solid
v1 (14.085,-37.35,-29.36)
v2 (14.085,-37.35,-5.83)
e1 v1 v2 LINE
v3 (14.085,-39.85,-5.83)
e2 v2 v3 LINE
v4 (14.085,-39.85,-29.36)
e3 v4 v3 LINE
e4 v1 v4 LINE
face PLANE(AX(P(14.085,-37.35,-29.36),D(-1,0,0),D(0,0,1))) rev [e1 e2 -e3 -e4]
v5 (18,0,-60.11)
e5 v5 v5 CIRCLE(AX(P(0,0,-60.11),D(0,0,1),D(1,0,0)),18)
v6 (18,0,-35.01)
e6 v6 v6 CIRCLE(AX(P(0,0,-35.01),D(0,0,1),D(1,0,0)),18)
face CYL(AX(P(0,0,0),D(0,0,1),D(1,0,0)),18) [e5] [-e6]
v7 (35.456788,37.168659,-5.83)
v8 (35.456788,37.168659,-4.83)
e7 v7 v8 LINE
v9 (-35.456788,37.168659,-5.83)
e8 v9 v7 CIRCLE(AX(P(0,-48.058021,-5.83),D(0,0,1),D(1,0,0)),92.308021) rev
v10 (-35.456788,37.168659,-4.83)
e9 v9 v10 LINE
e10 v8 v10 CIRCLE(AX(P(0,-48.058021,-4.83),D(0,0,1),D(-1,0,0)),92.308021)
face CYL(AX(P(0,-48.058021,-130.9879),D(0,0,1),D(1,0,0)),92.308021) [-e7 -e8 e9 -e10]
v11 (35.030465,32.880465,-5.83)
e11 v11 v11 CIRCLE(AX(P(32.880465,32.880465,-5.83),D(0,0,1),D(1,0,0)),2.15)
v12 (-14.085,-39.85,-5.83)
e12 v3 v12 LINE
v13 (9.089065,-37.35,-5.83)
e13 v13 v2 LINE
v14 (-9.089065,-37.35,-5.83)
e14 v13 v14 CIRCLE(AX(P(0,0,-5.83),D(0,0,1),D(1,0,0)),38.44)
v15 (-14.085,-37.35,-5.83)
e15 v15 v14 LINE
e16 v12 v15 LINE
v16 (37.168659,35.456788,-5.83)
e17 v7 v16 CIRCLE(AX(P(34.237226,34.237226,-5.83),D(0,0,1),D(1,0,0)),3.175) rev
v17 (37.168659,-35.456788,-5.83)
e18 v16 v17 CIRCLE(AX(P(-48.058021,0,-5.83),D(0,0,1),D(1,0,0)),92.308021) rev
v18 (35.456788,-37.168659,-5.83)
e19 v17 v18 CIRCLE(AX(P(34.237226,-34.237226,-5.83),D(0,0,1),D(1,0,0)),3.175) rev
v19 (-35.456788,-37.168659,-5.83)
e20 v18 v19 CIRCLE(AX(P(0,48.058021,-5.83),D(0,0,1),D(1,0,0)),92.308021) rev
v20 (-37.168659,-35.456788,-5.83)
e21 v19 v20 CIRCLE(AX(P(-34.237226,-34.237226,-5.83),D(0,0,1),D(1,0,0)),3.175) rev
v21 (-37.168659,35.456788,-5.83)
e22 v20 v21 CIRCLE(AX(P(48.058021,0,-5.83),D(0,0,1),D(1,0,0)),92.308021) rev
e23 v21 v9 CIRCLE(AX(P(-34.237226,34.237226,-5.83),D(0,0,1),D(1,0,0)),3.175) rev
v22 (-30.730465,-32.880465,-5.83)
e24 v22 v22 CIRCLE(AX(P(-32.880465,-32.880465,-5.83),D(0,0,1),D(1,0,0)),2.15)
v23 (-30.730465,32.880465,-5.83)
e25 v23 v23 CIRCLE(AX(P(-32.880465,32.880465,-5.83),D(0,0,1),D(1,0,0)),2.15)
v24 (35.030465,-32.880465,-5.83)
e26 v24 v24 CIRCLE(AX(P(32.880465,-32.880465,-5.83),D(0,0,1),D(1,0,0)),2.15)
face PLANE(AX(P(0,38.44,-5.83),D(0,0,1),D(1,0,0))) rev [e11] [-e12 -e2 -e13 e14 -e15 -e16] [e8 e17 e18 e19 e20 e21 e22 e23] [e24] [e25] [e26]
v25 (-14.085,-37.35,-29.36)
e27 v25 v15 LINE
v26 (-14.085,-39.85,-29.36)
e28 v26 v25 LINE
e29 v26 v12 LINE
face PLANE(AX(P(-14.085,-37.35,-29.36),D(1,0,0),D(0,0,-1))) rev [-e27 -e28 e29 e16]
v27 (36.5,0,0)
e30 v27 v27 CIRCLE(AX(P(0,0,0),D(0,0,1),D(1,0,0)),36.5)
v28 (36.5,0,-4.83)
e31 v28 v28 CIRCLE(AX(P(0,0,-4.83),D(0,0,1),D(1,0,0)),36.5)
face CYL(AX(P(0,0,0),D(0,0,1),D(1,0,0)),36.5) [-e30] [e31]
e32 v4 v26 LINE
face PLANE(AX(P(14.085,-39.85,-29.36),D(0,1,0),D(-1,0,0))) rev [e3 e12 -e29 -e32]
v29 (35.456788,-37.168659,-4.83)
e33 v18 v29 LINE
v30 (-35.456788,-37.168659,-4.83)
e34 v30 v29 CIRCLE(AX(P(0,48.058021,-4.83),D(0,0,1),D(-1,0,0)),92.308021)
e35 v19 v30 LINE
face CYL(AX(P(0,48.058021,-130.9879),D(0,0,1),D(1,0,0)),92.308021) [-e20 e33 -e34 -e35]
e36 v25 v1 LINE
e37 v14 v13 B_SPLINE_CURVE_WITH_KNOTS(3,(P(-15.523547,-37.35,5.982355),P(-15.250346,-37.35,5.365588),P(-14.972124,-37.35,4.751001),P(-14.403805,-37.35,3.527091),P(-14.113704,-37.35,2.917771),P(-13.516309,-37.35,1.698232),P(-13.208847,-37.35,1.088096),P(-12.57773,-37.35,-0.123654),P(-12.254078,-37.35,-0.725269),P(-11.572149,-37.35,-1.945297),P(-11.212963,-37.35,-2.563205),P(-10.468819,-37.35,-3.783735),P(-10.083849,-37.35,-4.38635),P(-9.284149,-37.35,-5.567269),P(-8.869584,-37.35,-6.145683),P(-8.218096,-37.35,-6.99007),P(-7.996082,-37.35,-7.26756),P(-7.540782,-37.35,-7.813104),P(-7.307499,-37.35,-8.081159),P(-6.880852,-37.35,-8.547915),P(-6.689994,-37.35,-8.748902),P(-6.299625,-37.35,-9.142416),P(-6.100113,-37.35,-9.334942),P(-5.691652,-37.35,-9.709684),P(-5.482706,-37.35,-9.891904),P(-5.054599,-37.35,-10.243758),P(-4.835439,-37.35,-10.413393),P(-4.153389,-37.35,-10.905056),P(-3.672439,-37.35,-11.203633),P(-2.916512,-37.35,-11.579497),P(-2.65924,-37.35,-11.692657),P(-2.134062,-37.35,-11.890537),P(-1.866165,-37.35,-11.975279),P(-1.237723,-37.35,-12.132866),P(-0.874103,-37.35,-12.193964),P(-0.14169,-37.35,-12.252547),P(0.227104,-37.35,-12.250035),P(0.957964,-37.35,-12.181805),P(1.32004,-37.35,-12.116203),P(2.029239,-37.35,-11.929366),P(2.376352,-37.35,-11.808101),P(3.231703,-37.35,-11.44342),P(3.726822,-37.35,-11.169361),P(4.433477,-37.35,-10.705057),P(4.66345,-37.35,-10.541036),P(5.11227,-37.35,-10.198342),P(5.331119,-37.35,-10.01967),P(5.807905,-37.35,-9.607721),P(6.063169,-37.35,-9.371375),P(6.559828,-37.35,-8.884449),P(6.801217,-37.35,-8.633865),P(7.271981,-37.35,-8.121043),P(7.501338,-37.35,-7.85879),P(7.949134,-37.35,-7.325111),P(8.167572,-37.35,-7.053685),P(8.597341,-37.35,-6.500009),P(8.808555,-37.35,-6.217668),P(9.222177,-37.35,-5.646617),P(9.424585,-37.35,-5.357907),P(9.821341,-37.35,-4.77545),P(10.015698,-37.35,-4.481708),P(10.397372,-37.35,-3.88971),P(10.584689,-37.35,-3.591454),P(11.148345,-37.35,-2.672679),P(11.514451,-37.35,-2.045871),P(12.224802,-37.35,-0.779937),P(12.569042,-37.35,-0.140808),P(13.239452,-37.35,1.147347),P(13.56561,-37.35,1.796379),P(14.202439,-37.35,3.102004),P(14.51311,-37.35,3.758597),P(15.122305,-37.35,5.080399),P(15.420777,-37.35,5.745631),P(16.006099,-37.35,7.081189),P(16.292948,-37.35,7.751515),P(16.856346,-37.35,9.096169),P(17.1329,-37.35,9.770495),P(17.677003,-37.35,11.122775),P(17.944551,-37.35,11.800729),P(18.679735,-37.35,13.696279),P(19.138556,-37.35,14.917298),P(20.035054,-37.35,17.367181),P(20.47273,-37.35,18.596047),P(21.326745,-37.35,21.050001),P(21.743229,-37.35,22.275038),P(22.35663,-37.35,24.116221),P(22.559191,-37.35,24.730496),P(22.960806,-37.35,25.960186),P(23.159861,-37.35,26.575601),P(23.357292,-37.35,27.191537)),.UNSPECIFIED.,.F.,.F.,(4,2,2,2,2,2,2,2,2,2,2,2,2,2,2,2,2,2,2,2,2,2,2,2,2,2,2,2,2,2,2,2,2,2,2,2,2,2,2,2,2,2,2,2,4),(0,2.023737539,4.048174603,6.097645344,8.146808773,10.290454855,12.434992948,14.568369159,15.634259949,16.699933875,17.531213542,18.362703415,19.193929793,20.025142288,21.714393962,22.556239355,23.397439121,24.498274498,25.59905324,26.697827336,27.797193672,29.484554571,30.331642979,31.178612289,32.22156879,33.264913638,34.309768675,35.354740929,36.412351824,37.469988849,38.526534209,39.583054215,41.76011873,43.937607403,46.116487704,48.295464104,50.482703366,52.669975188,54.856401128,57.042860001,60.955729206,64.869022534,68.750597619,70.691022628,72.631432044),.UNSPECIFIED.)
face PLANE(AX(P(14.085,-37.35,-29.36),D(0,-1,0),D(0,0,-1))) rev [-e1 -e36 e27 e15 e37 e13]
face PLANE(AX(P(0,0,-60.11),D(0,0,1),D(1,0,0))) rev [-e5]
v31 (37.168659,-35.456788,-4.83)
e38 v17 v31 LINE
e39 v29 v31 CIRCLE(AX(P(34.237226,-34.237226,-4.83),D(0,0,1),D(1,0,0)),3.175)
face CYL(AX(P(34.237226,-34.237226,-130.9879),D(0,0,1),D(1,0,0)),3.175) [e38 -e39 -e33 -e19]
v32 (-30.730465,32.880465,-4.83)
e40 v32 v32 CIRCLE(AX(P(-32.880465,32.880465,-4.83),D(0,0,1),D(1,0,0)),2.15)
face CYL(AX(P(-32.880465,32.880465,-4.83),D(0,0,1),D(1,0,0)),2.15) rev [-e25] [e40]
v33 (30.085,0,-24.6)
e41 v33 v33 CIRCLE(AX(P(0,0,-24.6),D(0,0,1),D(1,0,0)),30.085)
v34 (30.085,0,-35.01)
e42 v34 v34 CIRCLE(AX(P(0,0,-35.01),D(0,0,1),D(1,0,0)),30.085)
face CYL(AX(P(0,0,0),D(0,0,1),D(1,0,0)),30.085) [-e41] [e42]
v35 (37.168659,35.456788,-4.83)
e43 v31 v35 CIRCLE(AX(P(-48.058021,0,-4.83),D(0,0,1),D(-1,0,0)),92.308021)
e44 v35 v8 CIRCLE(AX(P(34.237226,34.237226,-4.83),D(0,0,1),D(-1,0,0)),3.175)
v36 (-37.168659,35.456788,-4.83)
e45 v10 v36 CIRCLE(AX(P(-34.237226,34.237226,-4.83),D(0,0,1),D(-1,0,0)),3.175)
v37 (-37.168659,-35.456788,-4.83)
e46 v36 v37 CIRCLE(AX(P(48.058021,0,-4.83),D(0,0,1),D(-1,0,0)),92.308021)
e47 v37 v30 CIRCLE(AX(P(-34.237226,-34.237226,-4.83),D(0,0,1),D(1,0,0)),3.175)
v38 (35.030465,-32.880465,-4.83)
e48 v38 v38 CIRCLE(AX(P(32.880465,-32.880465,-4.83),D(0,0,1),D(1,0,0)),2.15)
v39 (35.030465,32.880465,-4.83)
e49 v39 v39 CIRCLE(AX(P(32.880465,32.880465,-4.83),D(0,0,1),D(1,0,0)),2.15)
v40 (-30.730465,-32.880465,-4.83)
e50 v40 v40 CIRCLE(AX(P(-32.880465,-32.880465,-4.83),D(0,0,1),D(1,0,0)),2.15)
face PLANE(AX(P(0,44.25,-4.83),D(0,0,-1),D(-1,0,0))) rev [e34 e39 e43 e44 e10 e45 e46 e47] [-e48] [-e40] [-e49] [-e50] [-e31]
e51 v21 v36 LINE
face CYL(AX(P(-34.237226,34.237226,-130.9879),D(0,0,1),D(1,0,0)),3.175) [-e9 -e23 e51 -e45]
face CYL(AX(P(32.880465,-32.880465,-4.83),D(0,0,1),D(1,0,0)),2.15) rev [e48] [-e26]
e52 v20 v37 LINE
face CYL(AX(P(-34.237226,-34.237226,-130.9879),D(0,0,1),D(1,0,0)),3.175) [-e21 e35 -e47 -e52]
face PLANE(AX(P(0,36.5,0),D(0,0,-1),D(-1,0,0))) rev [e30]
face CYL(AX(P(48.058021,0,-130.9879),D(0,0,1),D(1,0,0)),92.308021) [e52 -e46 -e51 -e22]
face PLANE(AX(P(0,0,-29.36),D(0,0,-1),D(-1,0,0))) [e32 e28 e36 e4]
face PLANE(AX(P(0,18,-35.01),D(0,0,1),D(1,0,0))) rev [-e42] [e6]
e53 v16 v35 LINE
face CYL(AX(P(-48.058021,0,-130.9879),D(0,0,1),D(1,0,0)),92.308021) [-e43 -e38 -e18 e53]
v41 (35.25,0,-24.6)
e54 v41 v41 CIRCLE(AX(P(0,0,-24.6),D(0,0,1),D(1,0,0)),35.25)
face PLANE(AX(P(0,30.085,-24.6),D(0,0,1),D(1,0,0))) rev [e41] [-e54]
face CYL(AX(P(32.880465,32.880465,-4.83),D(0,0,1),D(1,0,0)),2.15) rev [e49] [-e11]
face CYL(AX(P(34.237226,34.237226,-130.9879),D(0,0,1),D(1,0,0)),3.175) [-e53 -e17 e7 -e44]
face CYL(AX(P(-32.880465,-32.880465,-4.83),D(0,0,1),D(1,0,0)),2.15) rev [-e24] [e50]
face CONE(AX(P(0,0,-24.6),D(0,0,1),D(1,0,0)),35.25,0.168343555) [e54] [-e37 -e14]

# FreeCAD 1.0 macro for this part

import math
import FreeCAD as App
import Part
import Sketcher

V = App.Vector


def add_polygon(sketch, points):
    """Adds a closed chain of lines whose ends are joined by coincident constraints."""
    first, n = sketch.GeometryCount, len(points)
    for a, b in zip(points, points[1:] + points[:1]):
        sketch.addGeometry(Part.LineSegment(App.Vector(*a, 0), App.Vector(*b, 0)), False)
    for i in range(n):
        sketch.addConstraint(Sketcher.Constraint("Coincident", first + i, 2, first + (i + 1) % n, 1))

doc = App.newDocument("Part")
params = doc.addObject("Spreadsheet::Sheet", "Params")
for row, (alias, value) in enumerate([
    ("sketch1_width", "18 mm"),
    ("sketch1_height", "1 mm"),
    ("sketch1_width2", "36.5 mm"),
    ("sketch1_height2", "25.1 mm"),
    ("sketch1_width3", "5.81 mm"),
    ("revolution_angle", "360 deg"),
    ("pad1_length", "1 mm"),
    ("sketch3_diameter", "4.3 mm"),
    ("hole_diameter", "4.3 mm"),
    ("sketch4_height", "2.5 mm"),
    ("sketch4_width", "28.17 mm"),
    ("pad2_length", "23.53 mm"),
], start=1):
    params.set(f"A{row}", alias)
    params.set(f"B{row}", "=" + value)
    params.setAlias(f"B{row}", alias)

body = doc.addObject("PartDesign::Body", "Body")

# Sketch on YZ plane
sketch1 = body.newObject("Sketcher::SketchObject", "Sketch")
sketch1.AttachmentSupport = (doc.getObject("YZ_Plane"), [""])
sketch1.MapMode = "FlatFace"
add_polygon(sketch1, [(0, -60.11), (18, -60.11), (18, -35.01), (30.085, -35.01), (30.085, -24.6), (35.25, -24.6), (38.44, -5.83), (44.25, -5.83), (44.25, -4.83), (36.5, -4.83), (36.5, 0), (0, 0)])  # lines 0-11
sketch1.addConstraint([
    Sketcher.Constraint("Horizontal", 0),
    Sketcher.Constraint("Vertical", 1),
    Sketcher.Constraint("Horizontal", 2),
    Sketcher.Constraint("Vertical", 3),
    Sketcher.Constraint("Horizontal", 4),
    Sketcher.Constraint("Horizontal", 6),
    Sketcher.Constraint("Vertical", 7),
    Sketcher.Constraint("Horizontal", 8),
    Sketcher.Constraint("Vertical", 9),
    Sketcher.Constraint("Horizontal", 10),
    Sketcher.Constraint("Vertical", 11),
    Sketcher.Constraint("Coincident", 10, 2, -1, 1),
    Sketcher.Constraint("DistanceX", 0, 1, 0, 2, 18.0),
    Sketcher.Constraint("DistanceY", 7, 1, 7, 2, 1.0),
    Sketcher.Constraint("DistanceX", 10, 2, 10, 1, 36.5),
    Sketcher.Constraint("DistanceY", 1, 1, 1, 2, 25.1),
    Sketcher.Constraint("DistanceX", 4, 2, 6, 2, 9.0),
    Sketcher.Constraint("DistanceX", 6, 1, 6, 2, 5.81),
    Sketcher.Constraint("DistanceX", 8, 2, 8, 1, 7.75),
    Sketcher.Constraint("DistanceY", 3, 1, 3, 2, 10.41),
    Sketcher.Constraint("DistanceY", 9, 1, 9, 2, 4.83),
    Sketcher.Constraint("DistanceY", 11, 2, 11, 1, 60.11),
    Sketcher.Constraint("DistanceX", 2, 1, 2, 2, 12.085),
])
sketch1.setExpression("Constraints[24]", "Params.sketch1_width")
sketch1.setExpression("Constraints[25]", "Params.sketch1_height")
sketch1.setExpression("Constraints[26]", "Params.sketch1_width2")
sketch1.setExpression("Constraints[27]", "Params.sketch1_height2")
sketch1.setExpression("Constraints[29]", "Params.sketch1_width3")
revolution = body.newObject("PartDesign::Revolution", "Revolution")
revolution.Profile = sketch1
revolution.ReferenceAxis = (sketch1, ["V_Axis"])
revolution.setExpression("Angle", "Params.revolution_angle")

# Sketch on XY plane
sketch2 = body.newObject("Sketcher::SketchObject", "Sketch001")
sketch2.AttachmentSupport = (doc.getObject("XY_Plane"), [""])
sketch2.MapMode = "FlatFace"
sketch2.AttachmentOffset = App.Placement(V(0, 0, -4.83), App.Rotation())
sketch2.addGeometry([
    Part.ArcOfCircle(Part.Circle(V(0, -48.058021, 0), V(0, 0, 1), 92.308021), math.radians(67.411263), math.radians(112.588737)),  # 0
    Part.ArcOfCircle(Part.Circle(V(-34.237226, 34.237226, 0), V(0, 0, 1), 3.175), math.radians(112.588737), math.radians(157.411263)),  # 1
    Part.ArcOfCircle(Part.Circle(V(48.058021, 0, 0), V(0, 0, 1), 92.308021), math.radians(157.411263), math.radians(202.588737)),  # 2
    Part.ArcOfCircle(Part.Circle(V(-34.237226, -34.237226, 0), V(0, 0, 1), 3.175), math.radians(-157.411263), math.radians(-112.588737)),  # 3
    Part.ArcOfCircle(Part.Circle(V(0, 48.058021, 0), V(0, 0, 1), 92.308021), math.radians(-112.588737), math.radians(-67.411263)),  # 4
    Part.ArcOfCircle(Part.Circle(V(34.237226, -34.237226, 0), V(0, 0, 1), 3.175), math.radians(-67.411263), math.radians(-22.588737)),  # 5
    Part.ArcOfCircle(Part.Circle(V(-48.058021, 0, 0), V(0, 0, 1), 92.308021), math.radians(-22.588737), math.radians(22.588737)),  # 6
    Part.ArcOfCircle(Part.Circle(V(34.237226, 34.237226, 0), V(0, 0, 1), 3.175), math.radians(22.588737), math.radians(67.411263)),  # 7
], False)
sketch2.addConstraint([
    Sketcher.Constraint("Tangent", 0, 2, 1, 1),
    Sketcher.Constraint("Tangent", 1, 2, 2, 1),
    Sketcher.Constraint("Tangent", 2, 2, 3, 1),
    Sketcher.Constraint("Tangent", 3, 2, 4, 1),
    Sketcher.Constraint("Tangent", 4, 2, 5, 1),
    Sketcher.Constraint("Tangent", 5, 2, 6, 1),
    Sketcher.Constraint("Tangent", 6, 2, 7, 1),
    Sketcher.Constraint("Tangent", 7, 2, 0, 1),
    Sketcher.Constraint("Equal", 0, 2),
    Sketcher.Constraint("Equal", 1, 3),
    Sketcher.Constraint("Equal", 2, 4),
    Sketcher.Constraint("Equal", 3, 5),
    Sketcher.Constraint("Equal", 4, 6),
    Sketcher.Constraint("Equal", 5, 7),
    Sketcher.Constraint("Symmetric", 0, 3, 4, 3, -1, 1),
    Sketcher.Constraint("Symmetric", 2, 3, 6, 3, -1, 1),
    Sketcher.Constraint("Symmetric", 3, 3, 5, 3, -2),
    Sketcher.Constraint("Radius", 1, 3.175),
    Sketcher.Constraint("Radius", 0, 92.308021),
    Sketcher.Constraint("DistanceY", 0, 3, -1, 1, 48.058021),
    Sketcher.Constraint("DistanceX", -1, 1, 2, 3, 48.058021),
])
pad1 = body.newObject("PartDesign::Pad", "Pad")
pad1.Profile = sketch2
pad1.setExpression("Length", "Params.pad1_length")
pad1.Reversed = True

# Sketch on XY plane
sketch3 = body.newObject("Sketcher::SketchObject", "Sketch002")
sketch3.AttachmentSupport = (doc.getObject("XY_Plane"), [""])
sketch3.MapMode = "FlatFace"
sketch3.AttachmentOffset = App.Placement(V(0, 0, -4.83), App.Rotation())
sketch3.addGeometry([
    Part.Circle(V(-32.880465, 32.880465, 0), V(0, 0, 1), 2.15),
    Part.Circle(V(32.880465, 32.880465, 0), V(0, 0, 1), 2.15),
    Part.Circle(V(32.880465, -32.880465, 0), V(0, 0, 1), 2.15),
    Part.Circle(V(-32.880465, -32.880465, 0), V(0, 0, 1), 2.15),
], False)
sketch3.addConstraint([
    Sketcher.Constraint("Equal", 0, 1),
    Sketcher.Constraint("Equal", 1, 2),
    Sketcher.Constraint("Equal", 2, 3),
    Sketcher.Constraint("Symmetric", 0, 3, 2, 3, -1, 1),
    Sketcher.Constraint("Symmetric", 1, 3, 3, 3, -1, 1),
    Sketcher.Constraint("Symmetric", 0, 3, 1, 3, -2),
    Sketcher.Constraint("Diameter", 0, 4.3),
    Sketcher.Constraint("DistanceX", 0, 3, 1, 3, 65.760931),
    Sketcher.Constraint("DistanceY", 2, 3, 1, 3, 65.760931),
])
sketch3.setExpression("Constraints[6]", "Params.sketch3_diameter")
doc.recompute()
hole = body.newObject("PartDesign::Hole", "Hole")
hole.Profile = sketch3
hole.ThreadType = "None"
hole.setExpression("Diameter", "Params.hole_diameter")
hole.DepthType = "ThroughAll"

# Sketch on XY plane
sketch4 = body.newObject("Sketcher::SketchObject", "Sketch003")
sketch4.AttachmentSupport = (doc.getObject("XY_Plane"), [""])
sketch4.MapMode = "FlatFace"
sketch4.AttachmentOffset = App.Placement(V(0, 0, -5.83), App.Rotation())
add_polygon(sketch4, [(14.085, -37.35), (14.085, -39.85), (-14.085, -39.85), (-14.085, -37.35)])  # lines 0-3
sketch4.addConstraint([
    Sketcher.Constraint("Vertical", 0),
    Sketcher.Constraint("Horizontal", 1),
    Sketcher.Constraint("Vertical", 2),
    Sketcher.Constraint("Horizontal", 3),
    Sketcher.Constraint("DistanceY", 0, 2, 0, 1, 2.5),
    Sketcher.Constraint("DistanceX", 1, 2, 1, 1, 28.17),
    Sketcher.Constraint("DistanceY", 0, 2, -1, 1, 39.85),
    Sketcher.Constraint("DistanceX", -1, 1, 0, 2, 14.085),
])
sketch4.setExpression("Constraints[8]", "Params.sketch4_height")
sketch4.setExpression("Constraints[9]", "Params.sketch4_width")
pad2 = body.newObject("PartDesign::Pad", "Pad001")
pad2.Profile = sketch4
pad2.setExpression("Length", "Params.pad2_length")
pad2.Reversed = True

doc.recompute()
